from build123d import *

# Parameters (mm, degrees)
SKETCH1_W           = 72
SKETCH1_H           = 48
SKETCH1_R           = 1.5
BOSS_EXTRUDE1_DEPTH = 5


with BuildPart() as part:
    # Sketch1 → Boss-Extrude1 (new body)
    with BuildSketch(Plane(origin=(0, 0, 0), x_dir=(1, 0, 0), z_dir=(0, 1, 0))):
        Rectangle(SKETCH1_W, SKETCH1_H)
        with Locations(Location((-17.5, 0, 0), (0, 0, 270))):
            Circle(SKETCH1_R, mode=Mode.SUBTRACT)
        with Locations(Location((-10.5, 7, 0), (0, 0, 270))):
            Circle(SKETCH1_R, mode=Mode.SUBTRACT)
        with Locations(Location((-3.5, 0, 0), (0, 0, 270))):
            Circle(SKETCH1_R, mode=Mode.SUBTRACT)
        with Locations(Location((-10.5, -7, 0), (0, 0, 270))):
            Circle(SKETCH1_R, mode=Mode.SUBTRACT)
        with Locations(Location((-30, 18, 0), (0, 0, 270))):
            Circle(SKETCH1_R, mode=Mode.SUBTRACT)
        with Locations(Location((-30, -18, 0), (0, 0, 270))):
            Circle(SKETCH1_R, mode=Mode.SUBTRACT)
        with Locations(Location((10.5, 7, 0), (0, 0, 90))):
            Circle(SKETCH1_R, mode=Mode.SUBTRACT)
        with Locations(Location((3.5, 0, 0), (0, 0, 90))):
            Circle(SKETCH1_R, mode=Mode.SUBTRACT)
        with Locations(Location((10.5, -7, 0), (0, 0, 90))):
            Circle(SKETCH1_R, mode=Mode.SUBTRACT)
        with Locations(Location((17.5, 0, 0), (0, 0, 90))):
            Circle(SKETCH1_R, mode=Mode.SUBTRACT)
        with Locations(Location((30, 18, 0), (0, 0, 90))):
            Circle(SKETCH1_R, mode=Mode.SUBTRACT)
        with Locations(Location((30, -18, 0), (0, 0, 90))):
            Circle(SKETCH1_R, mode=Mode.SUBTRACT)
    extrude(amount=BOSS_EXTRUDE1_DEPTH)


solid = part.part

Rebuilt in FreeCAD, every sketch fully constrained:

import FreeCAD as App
import Part
import Sketcher
from FreeCAD import Vector

doc = App.newDocument("Part")
body = doc.addObject("PartDesign::Body", "Body")

sketch1 = body.newObject("Sketcher::SketchObject", "Sketch")
sketch1.AttachmentSupport = (doc.getObject("XZ_Plane"), [""])
sketch1.MapMode = "FlatFace"
sketch1.addGeometry(Part.LineSegment(Vector(-36, -24, 0), Vector(-36, 24, 0)), False)
sketch1.addGeometry(Part.LineSegment(Vector(-36, 24, 0), Vector(36, 24, 0)), False)
sketch1.addGeometry(Part.LineSegment(Vector(36, 24, 0), Vector(36, -24, 0)), False)
sketch1.addGeometry(Part.LineSegment(Vector(36, -24, 0), Vector(-36, -24, 0)), False)
sketch1.addGeometry(Part.Circle(Vector(-30, 18, 0), Vector(0, 0, 1), 1.5), False)
sketch1.addGeometry(Part.Circle(Vector(-10.5, 7, 0), Vector(0, 0, 1), 1.5), False)
sketch1.addGeometry(Part.Circle(Vector(30, 18, 0), Vector(0, 0, 1), 1.5), False)
sketch1.addGeometry(Part.Circle(Vector(10.5, 7, 0), Vector(0, 0, 1), 1.5), False)
sketch1.addGeometry(Part.Circle(Vector(-17.5, 0, 0), Vector(0, 0, 1), 1.5), False)
sketch1.addGeometry(Part.Circle(Vector(-3.5, 0, 0), Vector(0, 0, 1), 1.5), False)
sketch1.addGeometry(Part.Circle(Vector(-10.5, -7, 0), Vector(0, 0, 1), 1.5), False)
sketch1.addGeometry(Part.Circle(Vector(-30, -18, 0), Vector(0, 0, 1), 1.5), False)
sketch1.addGeometry(Part.Circle(Vector(3.5, 0, 0), Vector(0, 0, 1), 1.5), False)
sketch1.addGeometry(Part.Circle(Vector(10.5, -7, 0), Vector(0, 0, 1), 1.5), False)
sketch1.addGeometry(Part.Circle(Vector(17.5, 0, 0), Vector(0, 0, 1), 1.5), False)
sketch1.addGeometry(Part.Circle(Vector(30, -18, 0), Vector(0, 0, 1), 1.5), False)
sketch1.addConstraint(Sketcher.Constraint("Coincident", 0, 2, 1, 1))
sketch1.addConstraint(Sketcher.Constraint("Coincident", 1, 2, 2, 1))
sketch1.addConstraint(Sketcher.Constraint("Coincident", 2, 2, 3, 1))
sketch1.addConstraint(Sketcher.Constraint("Coincident", 3, 2, 0, 1))
sketch1.addConstraint(Sketcher.Constraint("Vertical", 0))
sketch1.addConstraint(Sketcher.Constraint("Horizontal", 1))
sketch1.addConstraint(Sketcher.Constraint("Vertical", 2))
sketch1.addConstraint(Sketcher.Constraint("Horizontal", 3))
sketch1.addConstraint(Sketcher.Constraint("Equal", 4, 5))
sketch1.addConstraint(Sketcher.Constraint("Equal", 5, 6))
sketch1.addConstraint(Sketcher.Constraint("Equal", 6, 7))
sketch1.addConstraint(Sketcher.Constraint("Equal", 7, 8))
sketch1.addConstraint(Sketcher.Constraint("Equal", 8, 9))
sketch1.addConstraint(Sketcher.Constraint("Equal", 9, 10))
sketch1.addConstraint(Sketcher.Constraint("Equal", 10, 11))
sketch1.addConstraint(Sketcher.Constraint("Equal", 11, 12))
sketch1.addConstraint(Sketcher.Constraint("Equal", 12, 13))
sketch1.addConstraint(Sketcher.Constraint("Equal", 13, 14))
sketch1.addConstraint(Sketcher.Constraint("Equal", 14, 15))
sketch1.addConstraint(Sketcher.Constraint("Symmetric", 7, 3, 10, 3, -1, 1))
sketch1.addConstraint(Sketcher.Constraint("Symmetric", 6, 3, 11, 3, -1, 1))
sketch1.addConstraint(Sketcher.Constraint("Symmetric", 9, 3, 12, 3, -1, 1))
sketch1.addConstraint(Sketcher.Constraint("Symmetric", 5, 3, 13, 3, -1, 1))
sketch1.addConstraint(Sketcher.Constraint("Symmetric", 8, 3, 14, 3, -1, 1))
sketch1.addConstraint(Sketcher.Constraint("Symmetric", 4, 3, 15, 3, -1, 1))
sketch1.addConstraint(Sketcher.Constraint("Symmetric", 0, 2, 2, 2, -1, 1))
sketch1.addConstraint(Sketcher.Constraint("Symmetric", 4, 3, 6, 3, -2))
sketch1.addConstraint(Sketcher.Constraint("Symmetric", 5, 3, 7, 3, -2))
sketch1.addConstraint(Sketcher.Constraint("PointOnObject", 8, 3, -1))
sketch1.addConstraint(Sketcher.Constraint("PointOnObject", 9, 3, -1))
sketch1.addConstraint(Sketcher.Constraint("Diameter", 4, 3.0))
sketch1.addConstraint(Sketcher.Constraint("DistanceX", 1, 1, 1, 2, 72.0))
sketch1.addConstraint(Sketcher.Constraint("DistanceY", 0, 1, 0, 2, 48.0))
sketch1.addConstraint(Sketcher.Constraint("DistanceX", 4, 3, -1, 1, 30.0))
sketch1.addConstraint(Sketcher.Constraint("DistanceY", -1, 1, 4, 3, 18.0))
sketch1.addConstraint(Sketcher.Constraint("DistanceY", -1, 1, 5, 3, 7.0))
sketch1.addConstraint(Sketcher.Constraint("DistanceX", 5, 3, 7, 3, 21.0))
sketch1.addConstraint(Sketcher.Constraint("DistanceX", 8, 3, 5, 3, 7.0))
sketch1.addConstraint(Sketcher.Constraint("DistanceX", 5, 3, 9, 3, 7.0))
pad1 = body.newObject("PartDesign::Pad", "Pad")
pad1.Profile = sketch1
pad1.Length = 5
pad1.Reversed = True

doc.recompute()
